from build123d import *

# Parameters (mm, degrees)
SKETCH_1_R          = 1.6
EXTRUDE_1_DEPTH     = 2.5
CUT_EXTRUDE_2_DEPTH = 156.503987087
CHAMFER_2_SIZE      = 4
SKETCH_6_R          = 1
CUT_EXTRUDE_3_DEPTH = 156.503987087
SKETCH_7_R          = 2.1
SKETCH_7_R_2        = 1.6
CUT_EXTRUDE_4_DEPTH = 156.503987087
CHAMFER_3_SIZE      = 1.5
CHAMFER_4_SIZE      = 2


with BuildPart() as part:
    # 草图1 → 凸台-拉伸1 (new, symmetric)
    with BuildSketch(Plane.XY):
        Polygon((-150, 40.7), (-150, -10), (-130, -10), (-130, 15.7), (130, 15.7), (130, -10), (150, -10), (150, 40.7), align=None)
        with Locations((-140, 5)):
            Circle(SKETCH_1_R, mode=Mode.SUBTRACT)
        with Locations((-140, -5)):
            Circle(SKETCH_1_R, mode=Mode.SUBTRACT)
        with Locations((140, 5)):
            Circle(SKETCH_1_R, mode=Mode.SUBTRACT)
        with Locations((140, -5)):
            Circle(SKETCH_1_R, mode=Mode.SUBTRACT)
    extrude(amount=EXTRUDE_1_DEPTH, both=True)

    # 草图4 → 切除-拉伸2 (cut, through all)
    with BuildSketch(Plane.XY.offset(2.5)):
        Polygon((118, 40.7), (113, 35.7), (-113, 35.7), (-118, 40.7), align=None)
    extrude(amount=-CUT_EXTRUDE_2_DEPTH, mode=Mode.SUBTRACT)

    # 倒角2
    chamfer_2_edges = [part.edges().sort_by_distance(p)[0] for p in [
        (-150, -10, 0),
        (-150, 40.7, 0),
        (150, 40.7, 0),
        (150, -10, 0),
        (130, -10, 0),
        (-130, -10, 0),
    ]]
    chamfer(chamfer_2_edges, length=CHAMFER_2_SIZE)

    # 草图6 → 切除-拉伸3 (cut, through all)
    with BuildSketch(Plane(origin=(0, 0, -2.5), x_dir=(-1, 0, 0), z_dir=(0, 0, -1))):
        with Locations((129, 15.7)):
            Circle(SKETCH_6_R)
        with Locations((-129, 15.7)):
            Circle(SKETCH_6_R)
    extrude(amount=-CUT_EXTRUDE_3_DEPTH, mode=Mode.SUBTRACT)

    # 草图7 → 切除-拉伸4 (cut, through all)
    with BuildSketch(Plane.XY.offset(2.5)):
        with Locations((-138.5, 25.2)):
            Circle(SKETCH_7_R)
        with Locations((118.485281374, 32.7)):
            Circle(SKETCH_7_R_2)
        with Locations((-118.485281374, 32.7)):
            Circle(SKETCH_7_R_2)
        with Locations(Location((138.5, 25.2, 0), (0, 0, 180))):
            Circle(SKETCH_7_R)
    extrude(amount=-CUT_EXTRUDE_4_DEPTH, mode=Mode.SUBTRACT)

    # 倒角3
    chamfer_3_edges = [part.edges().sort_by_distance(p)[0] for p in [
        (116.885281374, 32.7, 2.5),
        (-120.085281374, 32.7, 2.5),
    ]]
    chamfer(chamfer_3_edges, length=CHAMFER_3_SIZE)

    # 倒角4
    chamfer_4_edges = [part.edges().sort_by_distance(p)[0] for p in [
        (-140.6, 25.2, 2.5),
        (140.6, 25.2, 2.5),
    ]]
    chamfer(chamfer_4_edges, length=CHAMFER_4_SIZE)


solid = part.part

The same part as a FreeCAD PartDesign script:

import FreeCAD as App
import Part
import Sketcher

V = App.Vector
Q = App.Units.Quantity


def edges_at(feature, points):
    """Names of the edges that pass closest to the given points."""
    edges = feature.Shape.Edges
    near = lambda p: min(range(len(edges)), key=lambda i: edges[i].distToShape(Part.Vertex(*p))[0])
    return sorted({f"Edge{near(p) + 1}" for p in points})

doc = App.newDocument("Part")
body = doc.addObject("PartDesign::Body", "Body")

sketch1 = body.newObject("Sketcher::SketchObject", "Sketch")
sketch1.AttachmentSupport = (doc.getObject("XY_Plane"), [""])
sketch1.MapMode = "FlatFace"
sketch1.addGeometry([
    Part.LineSegment(V(-150, 40.7, 0), V(-150, -10, 0)),
    Part.LineSegment(V(-150, -10, 0), V(-130, -10, 0)),
    Part.LineSegment(V(-130, -10, 0), V(-130, 15.7, 0)),
    Part.LineSegment(V(-130, 15.7, 0), V(130, 15.7, 0)),
    Part.LineSegment(V(130, 15.7, 0), V(130, -10, 0)),
    Part.LineSegment(V(130, -10, 0), V(150, -10, 0)),
    Part.LineSegment(V(150, -10, 0), V(150, 40.7, 0)),
    Part.LineSegment(V(150, 40.7, 0), V(-150, 40.7, 0)),
    Part.Circle(V(-140, -5, 0), V(0, 0, 1), 1.6),
    Part.Circle(V(140, -5, 0), V(0, 0, 1), 1.6),
    Part.Circle(V(-140, 5, 0), V(0, 0, 1), 1.6),
    Part.Circle(V(140, 5, 0), V(0, 0, 1), 1.6),
], False)
sketch1.addConstraint([
    Sketcher.Constraint("Coincident", 0, 2, 1, 1),
    Sketcher.Constraint("Coincident", 1, 2, 2, 1),
    Sketcher.Constraint("Coincident", 2, 2, 3, 1),
    Sketcher.Constraint("Coincident", 3, 2, 4, 1),
    Sketcher.Constraint("Coincident", 4, 2, 5, 1),
    Sketcher.Constraint("Coincident", 5, 2, 6, 1),
    Sketcher.Constraint("Coincident", 6, 2, 7, 1),
    Sketcher.Constraint("Coincident", 7, 2, 0, 1),
    Sketcher.Constraint("Vertical", 0),
    Sketcher.Constraint("Horizontal", 1),
    Sketcher.Constraint("Vertical", 2),
    Sketcher.Constraint("Horizontal", 3),
    Sketcher.Constraint("Vertical", 4),
    Sketcher.Constraint("Horizontal", 5),
    Sketcher.Constraint("Vertical", 6),
    Sketcher.Constraint("Horizontal", 7),
    Sketcher.Constraint("Equal", 8, 9),
    Sketcher.Constraint("Equal", 9, 10),
    Sketcher.Constraint("Equal", 10, 11),
    Sketcher.Constraint("Symmetric", 9, 3, 10, 3, -1, 1),
    Sketcher.Constraint("Symmetric", 8, 3, 11, 3, -1, 1),
    Sketcher.Constraint("Symmetric", 8, 3, 9, 3, -2),
    Sketcher.Constraint("Symmetric", 1, 2, 4, 2, -2),
    Sketcher.Constraint("Equal", 1, 5),
    Sketcher.Constraint("Diameter", 8, Q("3.2 mm")),
    Sketcher.Constraint("DistanceX", 1, 1, 1, 2, Q("20 mm")),
    Sketcher.Constraint("DistanceX", 3, 1, 3, 2, Q("260 mm")),
    Sketcher.Constraint("DistanceY", 0, 2, 0, 1, Q("50.7 mm")),
    Sketcher.Constraint("DistanceY", 2, 1, 2, 2, Q("25.7 mm")),
    Sketcher.Constraint("DistanceX", 8, 3, -1, 1, Q("140 mm")),
    Sketcher.Constraint("DistanceY", 8, 3, -1, 1, Q("5 mm")),
    Sketcher.Constraint("DistanceY", 0, 2, -1, 1, Q("10 mm")),
])
pad1 = body.newObject("PartDesign::Pad", "Pad")
pad1.Profile = sketch1
pad1.Length = 5
pad1.Midplane = True

sketch2 = body.newObject("Sketcher::SketchObject", "Sketch001")
sketch2.AttachmentSupport = (doc.getObject("XY_Plane"), [""])
sketch2.MapMode = "FlatFace"
sketch2.AttachmentOffset = App.Placement(V(0, 0, 2.5), App.Rotation())
sketch2.addGeometry([
    Part.LineSegment(V(113, 36, 0), V(118, 41, 0)),
    Part.LineSegment(V(118, 41, 0), V(-118, 41, 0)),
    Part.LineSegment(V(-118, 41, 0), V(-113, 36, 0)),
    Part.LineSegment(V(-113, 36, 0), V(113, 36, 0)),
], False)
sketch2.addConstraint([
    Sketcher.Constraint("Coincident", 0, 2, 1, 1),
    Sketcher.Constraint("Coincident", 1, 2, 2, 1),
    Sketcher.Constraint("Coincident", 2, 2, 3, 1),
    Sketcher.Constraint("Coincident", 3, 2, 0, 1),
    Sketcher.Constraint("Horizontal", 1),
    Sketcher.Constraint("Horizontal", 3),
    Sketcher.Constraint("Perpendicular", 0, 2),
    Sketcher.Constraint("Equal", 0, 2),
    Sketcher.Constraint("DistanceX", 1, 2, 1, 1, Q("236 mm")),
    Sketcher.Constraint("DistanceX", 3, 1, 3, 2, Q("226 mm")),
    Sketcher.Constraint("DistanceX", -1, 1, 0, 2, Q("118 mm")),
    Sketcher.Constraint("DistanceY", -1, 1, 0, 2, Q("40.7 mm")),
])
pocket1 = body.newObject("PartDesign::Pocket", "Pocket")
pocket1.Profile = sketch2
pocket1.Type = "ThroughAll"
doc.recompute()

chamfer = body.newObject("PartDesign::Chamfer", "Chamfer")
chamfer.Base = (pocket1, edges_at(pocket1, [
    (-150, -10, 0),
    (-150, 40.7, 0),
    (150, 40.7, 0),
    (150, -10, 0),
    (130, -10, 0),
    (-130, -10, 0),
]))
chamfer.Size = 4

sketch3 = body.newObject("Sketcher::SketchObject", "Sketch002")
sketch3.AttachmentSupport = (doc.getObject("XY_Plane"), [""])
sketch3.MapMode = "FlatFace"
sketch3.AttachmentOffset = App.Placement(V(0, 0, -2.5), App.Rotation())
sketch3.addGeometry([
    Part.Circle(V(-129, 15.7, 0), V(0, 0, 1), 1),
    Part.Circle(V(129, 15.7, 0), V(0, 0, 1), 1),
], False)
sketch3.addConstraint([
    Sketcher.Constraint("Equal", 0, 1),
    Sketcher.Constraint("Symmetric", 0, 3, 1, 3, -2),
    Sketcher.Constraint("Diameter", 0, Q("2 mm")),
    Sketcher.Constraint("DistanceX", 0, 3, -1, 1, Q("129 mm")),
    Sketcher.Constraint("DistanceY", -1, 1, 0, 3, Q("15.7 mm")),
])
pocket2 = body.newObject("PartDesign::Pocket", "Pocket001")
pocket2.Profile = sketch3
pocket2.Type = "ThroughAll"
pocket2.Reversed = True

sketch4 = body.newObject("Sketcher::SketchObject", "Sketch003")
sketch4.AttachmentSupport = (doc.getObject("XY_Plane"), [""])
sketch4.MapMode = "FlatFace"
sketch4.AttachmentOffset = App.Placement(V(0, 0, 2.5), App.Rotation())
sketch4.addGeometry([
    Part.Circle(V(-138.5, 25.2, 0), V(0, 0, 1), 2.1),
    Part.Circle(V(118.5, 32.7, 0), V(0, 0, 1), 1.6),
    Part.Circle(V(-118.5, 32.7, 0), V(0, 0, 1), 1.6),
    Part.Circle(V(138.5, 25.2, 0), V(0, 0, 1), 2.1),
], False)
sketch4.addConstraint([
    Sketcher.Constraint("Equal", 1, 2),
    Sketcher.Constraint("Equal", 0, 3),
    Sketcher.Constraint("Symmetric", 1, 3, 2, 3, -2),
    Sketcher.Constraint("Symmetric", 0, 3, 3, 3, -2),
    Sketcher.Constraint("Diameter", 0, Q("4.2 mm")),
    Sketcher.Constraint("Diameter", 1, Q("3.2 mm")),
    Sketcher.Constraint("DistanceX", 0, 3, 3, 3, Q("277 mm")),
    Sketcher.Constraint("DistanceY", -1, 1, 0, 3, Q("25.2 mm")),
    Sketcher.Constraint("DistanceY", -1, 1, 1, 3, Q("32.7 mm")),
    Sketcher.Constraint("DistanceX", -1, 1, 1, 3, Q("118.485281 mm")),
])
pocket3 = body.newObject("PartDesign::Pocket", "Pocket002")
pocket3.Profile = sketch4
pocket3.Type = "ThroughAll"
doc.recompute()

chamfer2 = body.newObject("PartDesign::Chamfer", "Chamfer001")
chamfer2.Base = (pocket3, edges_at(pocket3, [(116.885, 32.7, 2.5), (-120.085, 32.7, 2.5)]))
chamfer2.Size = 1.5
doc.recompute()

chamfer3 = body.newObject("PartDesign::Chamfer", "Chamfer002")
chamfer3.Base = (chamfer2, edges_at(chamfer2, [(-140.6, 25.2, 2.5), (140.6, 25.2, 2.5)]))
chamfer3.Size = 2

doc.recompute()
